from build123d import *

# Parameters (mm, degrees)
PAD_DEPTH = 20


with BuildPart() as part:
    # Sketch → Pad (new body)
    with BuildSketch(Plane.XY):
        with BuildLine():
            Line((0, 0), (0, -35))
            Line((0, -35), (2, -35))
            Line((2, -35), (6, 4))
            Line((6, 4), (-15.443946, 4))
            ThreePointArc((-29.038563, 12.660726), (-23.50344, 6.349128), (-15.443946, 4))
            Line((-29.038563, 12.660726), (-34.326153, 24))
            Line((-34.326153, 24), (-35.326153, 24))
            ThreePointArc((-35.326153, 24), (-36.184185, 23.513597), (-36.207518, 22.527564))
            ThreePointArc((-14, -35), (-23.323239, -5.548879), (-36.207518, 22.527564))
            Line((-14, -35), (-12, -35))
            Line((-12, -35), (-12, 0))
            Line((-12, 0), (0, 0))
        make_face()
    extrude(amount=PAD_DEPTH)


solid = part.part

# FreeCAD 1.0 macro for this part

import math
import FreeCAD as App
import Part
import Sketcher
from FreeCAD import Vector
Q = App.Units.Quantity

doc = App.newDocument("Part")
body = doc.addObject("PartDesign::Body", "Body")

# Sketch on XY plane
sketch1 = body.newObject("Sketcher::SketchObject", "Sketch")
sketch1.AttachmentSupport = (doc.getObject("XY_Plane"), [""])
sketch1.MapMode = "FlatFace"
sketch1.addGeometry([
    Part.LineSegment(Vector(0, 0, 0), Vector(0, -35, 0)),  # 0
    Part.LineSegment(Vector(0, -35, 0), Vector(2, -35, 0)),  # 1
    Part.LineSegment(Vector(2, -35, 0), Vector(6, 4, 0)),  # 2
    Part.LineSegment(Vector(6, 4, 0), Vector(-15.443946, 4, 0)),  # 3
    Part.ArcOfCircle(Part.Circle(Vector(-15.443946, 19, 0), Vector(0, 0, 1), 15), math.radians(-155.000001), math.radians(-89.999998)),  # 4
    Part.LineSegment(Vector(-29.038563, 12.660726, 0), Vector(-34.326153, 24, 0)),  # 5
    Part.LineSegment(Vector(-34.326153, 24, 0), Vector(-35.326153, 24, 0)),  # 6
    Part.ArcOfCircle(Part.Circle(Vector(-35.326154, 23, 0), Vector(0, 0, 1), 1), math.radians(89.999961), math.radians(208.192577)),  # 7
    Part.ArcOfCircle(Part.Circle(Vector(-256.548753, -95.581542, 0), Vector(0, 0, 1), 250.000042), math.radians(14.023871), math.radians(28.192562)),  # 8
    Part.LineSegment(Vector(-14, -35, 0), Vector(-12, -35, 0)),  # 9
    Part.LineSegment(Vector(-12, -35, 0), Vector(-12, 0, 0)),  # 10
    Part.LineSegment(Vector(-12, 0, 0), Vector(0, 0, 0)),  # 11
], False)
sketch1.addConstraint([
    Sketcher.Constraint("Coincident", 0, 2, 1, 1),
    Sketcher.Constraint("Coincident", 1, 2, 2, 1),
    Sketcher.Constraint("Coincident", 2, 2, 3, 1),
    Sketcher.Constraint("Tangent", 3, 2, 4, 2),
    Sketcher.Constraint("Tangent", 4, 1, 5, 1),
    Sketcher.Constraint("Coincident", 5, 2, 6, 1),
    Sketcher.Constraint("Tangent", 6, 2, 7, 1),
    Sketcher.Constraint("Tangent", 7, 2, 8, 2),
    Sketcher.Constraint("Coincident", 8, 1, 9, 1),
    Sketcher.Constraint("Coincident", 9, 2, 10, 1),
    Sketcher.Constraint("Coincident", 10, 2, 11, 1),
    Sketcher.Constraint("Coincident", 11, 2, 0, 1),
    Sketcher.Constraint("Vertical", 0),
    Sketcher.Constraint("Horizontal", 1),
    Sketcher.Constraint("Horizontal", 3),
    Sketcher.Constraint("Horizontal", 6),
    Sketcher.Constraint("Horizontal", 9),
    Sketcher.Constraint("Vertical", 10),
    Sketcher.Constraint("Horizontal", 11),
    Sketcher.Constraint("Coincident", 11, 2, -1, 1),
    Sketcher.Constraint("Horizontal", 1, 2, 8, 1),
    Sketcher.Constraint("Equal", 1, 9),
    Sketcher.Constraint("Radius", 4, 15.0),
    Sketcher.Constraint("Radius", 7, 1.0),
    Sketcher.Constraint("DistanceX", 1, 1, 1, 2, 2.0),
    Sketcher.Constraint("DistanceX", 6, 2, 6, 1, 1.0),
    Sketcher.Constraint("DistanceX", 11, 1, 11, 2, 12.0),
    Sketcher.Constraint("DistanceY", 0, 2, 0, 1, 35.0),
    Sketcher.Constraint("Angle", 5, Q("114.999999 deg")),
    Sketcher.Constraint("DistanceY", -1, 1, 4, 3, 19.0),
    Sketcher.Constraint("DistanceY", -1, 1, 7, 3, 23.0),
    Sketcher.Constraint("DistanceX", -1, 1, 2, 2, 6.0),
    Sketcher.Constraint("Radius", 8, 250.000042),
    Sketcher.Constraint("DistanceX", 8, 3, 7, 3, 221.222599),
])
pad1 = body.newObject("PartDesign::Pad", "Pad")
pad1.Profile = sketch1
pad1.Length = 20

doc.recompute()
